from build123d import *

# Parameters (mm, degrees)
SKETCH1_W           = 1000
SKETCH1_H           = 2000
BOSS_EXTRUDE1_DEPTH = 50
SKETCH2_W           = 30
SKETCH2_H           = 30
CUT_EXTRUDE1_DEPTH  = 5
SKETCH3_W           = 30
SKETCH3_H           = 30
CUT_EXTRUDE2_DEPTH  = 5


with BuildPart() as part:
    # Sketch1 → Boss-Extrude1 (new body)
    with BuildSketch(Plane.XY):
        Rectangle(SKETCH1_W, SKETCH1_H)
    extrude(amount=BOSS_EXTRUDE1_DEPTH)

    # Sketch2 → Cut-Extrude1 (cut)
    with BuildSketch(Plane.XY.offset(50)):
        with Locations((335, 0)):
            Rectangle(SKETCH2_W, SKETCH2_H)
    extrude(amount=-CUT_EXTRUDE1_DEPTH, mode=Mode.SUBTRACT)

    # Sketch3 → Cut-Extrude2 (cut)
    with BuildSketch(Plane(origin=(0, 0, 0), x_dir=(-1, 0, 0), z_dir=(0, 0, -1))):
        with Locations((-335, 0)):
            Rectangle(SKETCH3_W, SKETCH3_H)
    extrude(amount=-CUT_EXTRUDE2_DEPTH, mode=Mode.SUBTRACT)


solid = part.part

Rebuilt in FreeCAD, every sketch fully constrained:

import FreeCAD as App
import Part
import Sketcher

V = App.Vector
Q = App.Units.Quantity


def add_polygon(sketch, points):
    """Adds a closed chain of lines whose ends are joined by coincident constraints."""
    first, n = sketch.GeometryCount, len(points)
    for a, b in zip(points, points[1:] + points[:1]):
        sketch.addGeometry(Part.LineSegment(App.Vector(*a, 0), App.Vector(*b, 0)), False)
    for i in range(n):
        sketch.addConstraint(Sketcher.Constraint("Coincident", first + i, 2, first + (i + 1) % n, 1))

doc = App.newDocument("Part")
body = doc.addObject("PartDesign::Body", "Body")

# Sketch on XY plane
sketch1 = body.newObject("Sketcher::SketchObject", "Sketch")
sketch1.AttachmentSupport = (doc.getObject("XY_Plane"), [""])
sketch1.MapMode = "FlatFace"
add_polygon(sketch1, [(-500, 1000), (-500, -1000), (500, -1000), (500, 1000)])  # lines 0-3
sketch1.addConstraint(Sketcher.Constraint("Vertical", 0))
sketch1.addConstraint(Sketcher.Constraint("Horizontal", 1))
sketch1.addConstraint(Sketcher.Constraint("Vertical", 2))
sketch1.addConstraint(Sketcher.Constraint("Horizontal", 3))
sketch1.addConstraint(Sketcher.Constraint("Symmetric", 0, 2, 2, 2, -1, 1))
sketch1.addConstraint(Sketcher.Constraint("DistanceX", 1, 1, 1, 2, Q("1000 mm")))
sketch1.addConstraint(Sketcher.Constraint("DistanceY", 0, 2, 0, 1, Q("2000 mm")))
pad1 = body.newObject("PartDesign::Pad", "Pad")
pad1.Profile = sketch1
pad1.Length = 50

# Sketch on XY plane
sketch2 = body.newObject("Sketcher::SketchObject", "Sketch001")
sketch2.AttachmentSupport = (doc.getObject("XY_Plane"), [""])
sketch2.MapMode = "FlatFace"
sketch2.AttachmentOffset = App.Placement(V(0, 0, 50), App.Rotation())
add_polygon(sketch2, [(320, 15), (320, -15), (350, -15), (350, 15)])  # lines 0-3
sketch2.addConstraint(Sketcher.Constraint("Vertical", 0))
sketch2.addConstraint(Sketcher.Constraint("Horizontal", 1))
sketch2.addConstraint(Sketcher.Constraint("Vertical", 2))
sketch2.addConstraint(Sketcher.Constraint("Horizontal", 3))
sketch2.addConstraint(Sketcher.Constraint("Equal", 3, 0))
sketch2.addConstraint(Sketcher.Constraint("DistanceX", 1, 1, 1, 2, Q("30 mm")))
sketch2.addConstraint(Sketcher.Constraint("DistanceX", -1, 1, 0, 2, Q("320 mm")))
sketch2.addConstraint(Sketcher.Constraint("DistanceY", 0, 2, -1, 1, Q("15 mm")))
pocket1 = body.newObject("PartDesign::Pocket", "Pocket")
pocket1.Profile = sketch2
pocket1.Length = 5

# Sketch on XY plane
sketch3 = body.newObject("Sketcher::SketchObject", "Sketch002")
sketch3.AttachmentSupport = (doc.getObject("XY_Plane"), [""])
sketch3.MapMode = "FlatFace"
add_polygon(sketch3, [(350, 15), (350, -15), (320, -15), (320, 15)])  # lines 0-3
sketch3.addConstraint(Sketcher.Constraint("Vertical", 0))
sketch3.addConstraint(Sketcher.Constraint("Horizontal", 1))
sketch3.addConstraint(Sketcher.Constraint("Vertical", 2))
sketch3.addConstraint(Sketcher.Constraint("Horizontal", 3))
sketch3.addConstraint(Sketcher.Constraint("Equal", 3, 0))
sketch3.addConstraint(Sketcher.Constraint("DistanceX", 1, 2, 1, 1, Q("30 mm")))
sketch3.addConstraint(Sketcher.Constraint("DistanceX", -1, 1, 0, 2, Q("350 mm")))
sketch3.addConstraint(Sketcher.Constraint("DistanceY", 0, 2, -1, 1, Q("15 mm")))
pocket2 = body.newObject("PartDesign::Pocket", "Pocket001")
pocket2.Profile = sketch3
pocket2.Length = 5
pocket2.Reversed = True

doc.recompute()
